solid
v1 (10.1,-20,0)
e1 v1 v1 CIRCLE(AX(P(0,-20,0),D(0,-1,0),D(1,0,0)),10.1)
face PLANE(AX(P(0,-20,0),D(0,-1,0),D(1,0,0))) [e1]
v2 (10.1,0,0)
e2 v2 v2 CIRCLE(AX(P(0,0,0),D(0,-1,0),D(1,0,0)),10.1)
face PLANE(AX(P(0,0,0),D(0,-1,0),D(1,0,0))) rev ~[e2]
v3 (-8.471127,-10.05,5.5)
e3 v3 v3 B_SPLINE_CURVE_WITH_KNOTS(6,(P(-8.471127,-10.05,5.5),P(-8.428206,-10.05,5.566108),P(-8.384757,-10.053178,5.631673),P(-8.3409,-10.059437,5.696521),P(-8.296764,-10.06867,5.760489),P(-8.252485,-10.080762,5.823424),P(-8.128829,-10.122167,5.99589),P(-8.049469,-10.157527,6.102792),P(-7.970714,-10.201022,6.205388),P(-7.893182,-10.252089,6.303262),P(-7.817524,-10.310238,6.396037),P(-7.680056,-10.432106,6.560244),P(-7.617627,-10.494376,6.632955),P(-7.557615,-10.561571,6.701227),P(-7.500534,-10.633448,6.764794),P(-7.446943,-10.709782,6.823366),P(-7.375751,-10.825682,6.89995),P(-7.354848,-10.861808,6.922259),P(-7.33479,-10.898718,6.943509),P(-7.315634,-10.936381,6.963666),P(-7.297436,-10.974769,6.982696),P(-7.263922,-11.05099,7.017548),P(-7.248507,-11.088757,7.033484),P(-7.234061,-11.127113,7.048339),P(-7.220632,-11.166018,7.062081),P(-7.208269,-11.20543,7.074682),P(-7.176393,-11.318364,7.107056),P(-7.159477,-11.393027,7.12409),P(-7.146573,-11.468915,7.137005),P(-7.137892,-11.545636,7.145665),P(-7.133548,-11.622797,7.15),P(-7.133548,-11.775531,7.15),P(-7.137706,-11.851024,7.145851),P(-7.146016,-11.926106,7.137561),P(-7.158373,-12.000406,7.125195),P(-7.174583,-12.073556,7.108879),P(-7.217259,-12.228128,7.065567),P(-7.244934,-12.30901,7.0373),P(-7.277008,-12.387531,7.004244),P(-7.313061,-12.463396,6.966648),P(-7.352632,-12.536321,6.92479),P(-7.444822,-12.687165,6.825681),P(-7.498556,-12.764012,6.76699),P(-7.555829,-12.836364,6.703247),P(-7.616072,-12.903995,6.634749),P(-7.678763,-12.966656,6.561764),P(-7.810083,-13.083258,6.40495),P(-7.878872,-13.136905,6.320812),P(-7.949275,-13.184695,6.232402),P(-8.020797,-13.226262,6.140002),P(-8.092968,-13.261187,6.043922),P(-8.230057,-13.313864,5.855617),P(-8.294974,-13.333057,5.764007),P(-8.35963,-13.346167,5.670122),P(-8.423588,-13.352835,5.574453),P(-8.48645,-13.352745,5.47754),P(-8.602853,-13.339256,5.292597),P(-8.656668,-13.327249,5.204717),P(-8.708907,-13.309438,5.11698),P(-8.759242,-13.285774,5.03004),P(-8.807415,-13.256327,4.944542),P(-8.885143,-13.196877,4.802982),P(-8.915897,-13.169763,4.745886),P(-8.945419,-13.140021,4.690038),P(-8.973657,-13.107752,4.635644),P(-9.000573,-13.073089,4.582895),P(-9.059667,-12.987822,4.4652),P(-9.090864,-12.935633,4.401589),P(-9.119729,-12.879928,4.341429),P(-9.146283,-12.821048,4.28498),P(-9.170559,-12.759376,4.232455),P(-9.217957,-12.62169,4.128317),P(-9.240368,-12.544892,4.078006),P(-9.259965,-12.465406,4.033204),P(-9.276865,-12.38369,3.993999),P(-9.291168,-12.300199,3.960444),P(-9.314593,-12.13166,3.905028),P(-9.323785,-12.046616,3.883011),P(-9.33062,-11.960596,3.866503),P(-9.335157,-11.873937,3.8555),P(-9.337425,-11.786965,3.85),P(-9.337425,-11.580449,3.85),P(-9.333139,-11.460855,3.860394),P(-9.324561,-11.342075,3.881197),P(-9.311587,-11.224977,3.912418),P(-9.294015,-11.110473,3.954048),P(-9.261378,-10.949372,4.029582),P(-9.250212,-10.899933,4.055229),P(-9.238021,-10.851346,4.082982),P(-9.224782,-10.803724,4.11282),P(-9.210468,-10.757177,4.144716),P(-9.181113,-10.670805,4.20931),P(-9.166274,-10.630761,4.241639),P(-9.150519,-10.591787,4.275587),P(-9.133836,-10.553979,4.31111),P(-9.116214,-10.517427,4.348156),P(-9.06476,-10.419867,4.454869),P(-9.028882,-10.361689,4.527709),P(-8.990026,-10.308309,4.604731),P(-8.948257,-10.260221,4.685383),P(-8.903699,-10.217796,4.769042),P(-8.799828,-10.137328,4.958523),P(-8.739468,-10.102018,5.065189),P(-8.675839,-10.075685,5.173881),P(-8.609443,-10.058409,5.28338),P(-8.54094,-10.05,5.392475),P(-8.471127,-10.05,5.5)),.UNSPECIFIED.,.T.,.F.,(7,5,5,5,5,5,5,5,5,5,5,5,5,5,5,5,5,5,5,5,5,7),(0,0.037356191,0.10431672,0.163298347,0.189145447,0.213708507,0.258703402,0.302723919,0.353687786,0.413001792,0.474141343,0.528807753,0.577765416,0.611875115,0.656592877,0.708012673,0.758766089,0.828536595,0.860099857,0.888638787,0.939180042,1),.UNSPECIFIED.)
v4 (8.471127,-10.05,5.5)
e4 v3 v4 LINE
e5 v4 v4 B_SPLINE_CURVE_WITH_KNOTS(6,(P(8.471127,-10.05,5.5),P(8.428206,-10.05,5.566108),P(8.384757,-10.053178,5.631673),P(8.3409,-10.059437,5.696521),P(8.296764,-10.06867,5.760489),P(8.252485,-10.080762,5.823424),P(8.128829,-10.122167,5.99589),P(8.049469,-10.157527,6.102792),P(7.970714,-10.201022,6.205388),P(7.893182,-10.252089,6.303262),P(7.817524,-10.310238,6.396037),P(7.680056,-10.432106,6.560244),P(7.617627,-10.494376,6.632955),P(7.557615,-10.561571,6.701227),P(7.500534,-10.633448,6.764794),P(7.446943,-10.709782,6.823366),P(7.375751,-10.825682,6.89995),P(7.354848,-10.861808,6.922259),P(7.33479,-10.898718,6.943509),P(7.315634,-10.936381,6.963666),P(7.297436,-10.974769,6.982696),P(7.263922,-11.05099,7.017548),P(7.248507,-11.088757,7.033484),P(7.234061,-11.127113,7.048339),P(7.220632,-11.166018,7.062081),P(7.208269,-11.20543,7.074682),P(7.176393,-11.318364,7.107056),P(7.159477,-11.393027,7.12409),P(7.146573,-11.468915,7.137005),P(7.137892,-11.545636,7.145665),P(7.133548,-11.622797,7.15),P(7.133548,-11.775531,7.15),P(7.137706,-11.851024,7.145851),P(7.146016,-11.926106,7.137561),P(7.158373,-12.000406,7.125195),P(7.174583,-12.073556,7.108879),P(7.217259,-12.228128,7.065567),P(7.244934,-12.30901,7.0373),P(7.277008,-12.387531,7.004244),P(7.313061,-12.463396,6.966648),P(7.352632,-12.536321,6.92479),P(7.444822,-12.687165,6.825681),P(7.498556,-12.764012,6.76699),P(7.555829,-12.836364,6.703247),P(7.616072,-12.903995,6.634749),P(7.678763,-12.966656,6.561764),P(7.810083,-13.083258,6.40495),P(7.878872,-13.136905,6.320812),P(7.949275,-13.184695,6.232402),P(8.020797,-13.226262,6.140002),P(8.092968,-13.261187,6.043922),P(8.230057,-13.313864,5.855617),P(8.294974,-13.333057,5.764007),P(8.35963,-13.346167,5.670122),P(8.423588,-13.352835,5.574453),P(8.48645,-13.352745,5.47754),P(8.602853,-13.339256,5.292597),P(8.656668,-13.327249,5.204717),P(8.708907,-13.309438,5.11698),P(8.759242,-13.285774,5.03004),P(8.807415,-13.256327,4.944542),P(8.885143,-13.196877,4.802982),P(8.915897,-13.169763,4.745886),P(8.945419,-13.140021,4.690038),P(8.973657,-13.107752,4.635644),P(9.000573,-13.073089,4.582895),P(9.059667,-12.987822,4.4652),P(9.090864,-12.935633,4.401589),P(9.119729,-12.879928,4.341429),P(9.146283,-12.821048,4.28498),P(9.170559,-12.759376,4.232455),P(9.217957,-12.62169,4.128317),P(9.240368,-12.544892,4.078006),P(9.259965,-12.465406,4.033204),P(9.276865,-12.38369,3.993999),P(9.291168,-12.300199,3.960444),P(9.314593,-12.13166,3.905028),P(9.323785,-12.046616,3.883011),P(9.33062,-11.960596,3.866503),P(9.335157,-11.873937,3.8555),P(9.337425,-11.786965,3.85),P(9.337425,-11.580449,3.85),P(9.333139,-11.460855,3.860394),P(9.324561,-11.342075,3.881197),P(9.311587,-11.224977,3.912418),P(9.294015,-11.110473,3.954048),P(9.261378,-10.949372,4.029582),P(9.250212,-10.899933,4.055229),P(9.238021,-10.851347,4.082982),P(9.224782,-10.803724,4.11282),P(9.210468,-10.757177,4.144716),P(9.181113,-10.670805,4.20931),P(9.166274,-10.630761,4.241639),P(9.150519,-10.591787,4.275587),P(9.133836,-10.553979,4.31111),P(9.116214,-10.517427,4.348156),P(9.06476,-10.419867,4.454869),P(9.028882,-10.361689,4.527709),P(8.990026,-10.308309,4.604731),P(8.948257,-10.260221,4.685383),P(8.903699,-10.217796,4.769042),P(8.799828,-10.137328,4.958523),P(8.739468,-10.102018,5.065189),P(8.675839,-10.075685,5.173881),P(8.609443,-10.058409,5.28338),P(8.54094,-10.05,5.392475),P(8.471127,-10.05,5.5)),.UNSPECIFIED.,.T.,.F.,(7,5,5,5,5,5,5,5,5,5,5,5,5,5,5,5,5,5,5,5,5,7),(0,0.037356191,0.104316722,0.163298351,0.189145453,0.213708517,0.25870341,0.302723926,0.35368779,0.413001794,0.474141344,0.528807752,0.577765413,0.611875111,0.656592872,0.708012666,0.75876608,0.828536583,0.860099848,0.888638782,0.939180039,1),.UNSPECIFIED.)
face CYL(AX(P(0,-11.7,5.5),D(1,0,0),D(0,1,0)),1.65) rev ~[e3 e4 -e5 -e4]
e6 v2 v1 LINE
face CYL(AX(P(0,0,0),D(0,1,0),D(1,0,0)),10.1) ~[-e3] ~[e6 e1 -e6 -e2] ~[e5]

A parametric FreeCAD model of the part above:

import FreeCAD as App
import Part
import Sketcher
Q = App.Units.Quantity

doc = App.newDocument("Part")
body = doc.addObject("PartDesign::Body", "Body")

# Sketch on XZ plane
sketch1 = body.newObject("Sketcher::SketchObject", "Sketch")
sketch1.AttachmentSupport = (doc.getObject("XZ_Plane"), [""])
sketch1.MapMode = "FlatFace"
sketch1.addGeometry(Part.Circle(App.Vector(0, 0, 0), App.Vector(0, 0, 1), 10), False)
sketch1.addConstraint([
    Sketcher.Constraint("Coincident", 0, 3, -1, 1),
    Sketcher.Constraint("Diameter", 0, Q("20.2 mm")),
])
pad1 = body.newObject("PartDesign::Pad", "Pad")
pad1.Profile = sketch1
pad1.Length = 20

# Sketch on YZ plane
sketch2 = body.newObject("Sketcher::SketchObject", "Sketch001")
sketch2.AttachmentSupport = (doc.getObject("YZ_Plane"), [""])
sketch2.MapMode = "FlatFace"
sketch2.addGeometry(Part.Circle(App.Vector(-11.7, 5.5, 0), App.Vector(0, 0, 1), 1.6), False)
sketch2.addConstraint([
    Sketcher.Constraint("Diameter", 0, Q("3.3 mm")),
    Sketcher.Constraint("DistanceX", 0, 3, -1, 1, Q("11.7 mm")),
    Sketcher.Constraint("DistanceY", -1, 1, 0, 3, Q("5.5 mm")),
])
pocket1 = body.newObject("PartDesign::Pocket", "Pocket")
pocket1.Profile = sketch2
pocket1.Length = 22.893992
pocket1.Midplane = True

doc.recompute()
